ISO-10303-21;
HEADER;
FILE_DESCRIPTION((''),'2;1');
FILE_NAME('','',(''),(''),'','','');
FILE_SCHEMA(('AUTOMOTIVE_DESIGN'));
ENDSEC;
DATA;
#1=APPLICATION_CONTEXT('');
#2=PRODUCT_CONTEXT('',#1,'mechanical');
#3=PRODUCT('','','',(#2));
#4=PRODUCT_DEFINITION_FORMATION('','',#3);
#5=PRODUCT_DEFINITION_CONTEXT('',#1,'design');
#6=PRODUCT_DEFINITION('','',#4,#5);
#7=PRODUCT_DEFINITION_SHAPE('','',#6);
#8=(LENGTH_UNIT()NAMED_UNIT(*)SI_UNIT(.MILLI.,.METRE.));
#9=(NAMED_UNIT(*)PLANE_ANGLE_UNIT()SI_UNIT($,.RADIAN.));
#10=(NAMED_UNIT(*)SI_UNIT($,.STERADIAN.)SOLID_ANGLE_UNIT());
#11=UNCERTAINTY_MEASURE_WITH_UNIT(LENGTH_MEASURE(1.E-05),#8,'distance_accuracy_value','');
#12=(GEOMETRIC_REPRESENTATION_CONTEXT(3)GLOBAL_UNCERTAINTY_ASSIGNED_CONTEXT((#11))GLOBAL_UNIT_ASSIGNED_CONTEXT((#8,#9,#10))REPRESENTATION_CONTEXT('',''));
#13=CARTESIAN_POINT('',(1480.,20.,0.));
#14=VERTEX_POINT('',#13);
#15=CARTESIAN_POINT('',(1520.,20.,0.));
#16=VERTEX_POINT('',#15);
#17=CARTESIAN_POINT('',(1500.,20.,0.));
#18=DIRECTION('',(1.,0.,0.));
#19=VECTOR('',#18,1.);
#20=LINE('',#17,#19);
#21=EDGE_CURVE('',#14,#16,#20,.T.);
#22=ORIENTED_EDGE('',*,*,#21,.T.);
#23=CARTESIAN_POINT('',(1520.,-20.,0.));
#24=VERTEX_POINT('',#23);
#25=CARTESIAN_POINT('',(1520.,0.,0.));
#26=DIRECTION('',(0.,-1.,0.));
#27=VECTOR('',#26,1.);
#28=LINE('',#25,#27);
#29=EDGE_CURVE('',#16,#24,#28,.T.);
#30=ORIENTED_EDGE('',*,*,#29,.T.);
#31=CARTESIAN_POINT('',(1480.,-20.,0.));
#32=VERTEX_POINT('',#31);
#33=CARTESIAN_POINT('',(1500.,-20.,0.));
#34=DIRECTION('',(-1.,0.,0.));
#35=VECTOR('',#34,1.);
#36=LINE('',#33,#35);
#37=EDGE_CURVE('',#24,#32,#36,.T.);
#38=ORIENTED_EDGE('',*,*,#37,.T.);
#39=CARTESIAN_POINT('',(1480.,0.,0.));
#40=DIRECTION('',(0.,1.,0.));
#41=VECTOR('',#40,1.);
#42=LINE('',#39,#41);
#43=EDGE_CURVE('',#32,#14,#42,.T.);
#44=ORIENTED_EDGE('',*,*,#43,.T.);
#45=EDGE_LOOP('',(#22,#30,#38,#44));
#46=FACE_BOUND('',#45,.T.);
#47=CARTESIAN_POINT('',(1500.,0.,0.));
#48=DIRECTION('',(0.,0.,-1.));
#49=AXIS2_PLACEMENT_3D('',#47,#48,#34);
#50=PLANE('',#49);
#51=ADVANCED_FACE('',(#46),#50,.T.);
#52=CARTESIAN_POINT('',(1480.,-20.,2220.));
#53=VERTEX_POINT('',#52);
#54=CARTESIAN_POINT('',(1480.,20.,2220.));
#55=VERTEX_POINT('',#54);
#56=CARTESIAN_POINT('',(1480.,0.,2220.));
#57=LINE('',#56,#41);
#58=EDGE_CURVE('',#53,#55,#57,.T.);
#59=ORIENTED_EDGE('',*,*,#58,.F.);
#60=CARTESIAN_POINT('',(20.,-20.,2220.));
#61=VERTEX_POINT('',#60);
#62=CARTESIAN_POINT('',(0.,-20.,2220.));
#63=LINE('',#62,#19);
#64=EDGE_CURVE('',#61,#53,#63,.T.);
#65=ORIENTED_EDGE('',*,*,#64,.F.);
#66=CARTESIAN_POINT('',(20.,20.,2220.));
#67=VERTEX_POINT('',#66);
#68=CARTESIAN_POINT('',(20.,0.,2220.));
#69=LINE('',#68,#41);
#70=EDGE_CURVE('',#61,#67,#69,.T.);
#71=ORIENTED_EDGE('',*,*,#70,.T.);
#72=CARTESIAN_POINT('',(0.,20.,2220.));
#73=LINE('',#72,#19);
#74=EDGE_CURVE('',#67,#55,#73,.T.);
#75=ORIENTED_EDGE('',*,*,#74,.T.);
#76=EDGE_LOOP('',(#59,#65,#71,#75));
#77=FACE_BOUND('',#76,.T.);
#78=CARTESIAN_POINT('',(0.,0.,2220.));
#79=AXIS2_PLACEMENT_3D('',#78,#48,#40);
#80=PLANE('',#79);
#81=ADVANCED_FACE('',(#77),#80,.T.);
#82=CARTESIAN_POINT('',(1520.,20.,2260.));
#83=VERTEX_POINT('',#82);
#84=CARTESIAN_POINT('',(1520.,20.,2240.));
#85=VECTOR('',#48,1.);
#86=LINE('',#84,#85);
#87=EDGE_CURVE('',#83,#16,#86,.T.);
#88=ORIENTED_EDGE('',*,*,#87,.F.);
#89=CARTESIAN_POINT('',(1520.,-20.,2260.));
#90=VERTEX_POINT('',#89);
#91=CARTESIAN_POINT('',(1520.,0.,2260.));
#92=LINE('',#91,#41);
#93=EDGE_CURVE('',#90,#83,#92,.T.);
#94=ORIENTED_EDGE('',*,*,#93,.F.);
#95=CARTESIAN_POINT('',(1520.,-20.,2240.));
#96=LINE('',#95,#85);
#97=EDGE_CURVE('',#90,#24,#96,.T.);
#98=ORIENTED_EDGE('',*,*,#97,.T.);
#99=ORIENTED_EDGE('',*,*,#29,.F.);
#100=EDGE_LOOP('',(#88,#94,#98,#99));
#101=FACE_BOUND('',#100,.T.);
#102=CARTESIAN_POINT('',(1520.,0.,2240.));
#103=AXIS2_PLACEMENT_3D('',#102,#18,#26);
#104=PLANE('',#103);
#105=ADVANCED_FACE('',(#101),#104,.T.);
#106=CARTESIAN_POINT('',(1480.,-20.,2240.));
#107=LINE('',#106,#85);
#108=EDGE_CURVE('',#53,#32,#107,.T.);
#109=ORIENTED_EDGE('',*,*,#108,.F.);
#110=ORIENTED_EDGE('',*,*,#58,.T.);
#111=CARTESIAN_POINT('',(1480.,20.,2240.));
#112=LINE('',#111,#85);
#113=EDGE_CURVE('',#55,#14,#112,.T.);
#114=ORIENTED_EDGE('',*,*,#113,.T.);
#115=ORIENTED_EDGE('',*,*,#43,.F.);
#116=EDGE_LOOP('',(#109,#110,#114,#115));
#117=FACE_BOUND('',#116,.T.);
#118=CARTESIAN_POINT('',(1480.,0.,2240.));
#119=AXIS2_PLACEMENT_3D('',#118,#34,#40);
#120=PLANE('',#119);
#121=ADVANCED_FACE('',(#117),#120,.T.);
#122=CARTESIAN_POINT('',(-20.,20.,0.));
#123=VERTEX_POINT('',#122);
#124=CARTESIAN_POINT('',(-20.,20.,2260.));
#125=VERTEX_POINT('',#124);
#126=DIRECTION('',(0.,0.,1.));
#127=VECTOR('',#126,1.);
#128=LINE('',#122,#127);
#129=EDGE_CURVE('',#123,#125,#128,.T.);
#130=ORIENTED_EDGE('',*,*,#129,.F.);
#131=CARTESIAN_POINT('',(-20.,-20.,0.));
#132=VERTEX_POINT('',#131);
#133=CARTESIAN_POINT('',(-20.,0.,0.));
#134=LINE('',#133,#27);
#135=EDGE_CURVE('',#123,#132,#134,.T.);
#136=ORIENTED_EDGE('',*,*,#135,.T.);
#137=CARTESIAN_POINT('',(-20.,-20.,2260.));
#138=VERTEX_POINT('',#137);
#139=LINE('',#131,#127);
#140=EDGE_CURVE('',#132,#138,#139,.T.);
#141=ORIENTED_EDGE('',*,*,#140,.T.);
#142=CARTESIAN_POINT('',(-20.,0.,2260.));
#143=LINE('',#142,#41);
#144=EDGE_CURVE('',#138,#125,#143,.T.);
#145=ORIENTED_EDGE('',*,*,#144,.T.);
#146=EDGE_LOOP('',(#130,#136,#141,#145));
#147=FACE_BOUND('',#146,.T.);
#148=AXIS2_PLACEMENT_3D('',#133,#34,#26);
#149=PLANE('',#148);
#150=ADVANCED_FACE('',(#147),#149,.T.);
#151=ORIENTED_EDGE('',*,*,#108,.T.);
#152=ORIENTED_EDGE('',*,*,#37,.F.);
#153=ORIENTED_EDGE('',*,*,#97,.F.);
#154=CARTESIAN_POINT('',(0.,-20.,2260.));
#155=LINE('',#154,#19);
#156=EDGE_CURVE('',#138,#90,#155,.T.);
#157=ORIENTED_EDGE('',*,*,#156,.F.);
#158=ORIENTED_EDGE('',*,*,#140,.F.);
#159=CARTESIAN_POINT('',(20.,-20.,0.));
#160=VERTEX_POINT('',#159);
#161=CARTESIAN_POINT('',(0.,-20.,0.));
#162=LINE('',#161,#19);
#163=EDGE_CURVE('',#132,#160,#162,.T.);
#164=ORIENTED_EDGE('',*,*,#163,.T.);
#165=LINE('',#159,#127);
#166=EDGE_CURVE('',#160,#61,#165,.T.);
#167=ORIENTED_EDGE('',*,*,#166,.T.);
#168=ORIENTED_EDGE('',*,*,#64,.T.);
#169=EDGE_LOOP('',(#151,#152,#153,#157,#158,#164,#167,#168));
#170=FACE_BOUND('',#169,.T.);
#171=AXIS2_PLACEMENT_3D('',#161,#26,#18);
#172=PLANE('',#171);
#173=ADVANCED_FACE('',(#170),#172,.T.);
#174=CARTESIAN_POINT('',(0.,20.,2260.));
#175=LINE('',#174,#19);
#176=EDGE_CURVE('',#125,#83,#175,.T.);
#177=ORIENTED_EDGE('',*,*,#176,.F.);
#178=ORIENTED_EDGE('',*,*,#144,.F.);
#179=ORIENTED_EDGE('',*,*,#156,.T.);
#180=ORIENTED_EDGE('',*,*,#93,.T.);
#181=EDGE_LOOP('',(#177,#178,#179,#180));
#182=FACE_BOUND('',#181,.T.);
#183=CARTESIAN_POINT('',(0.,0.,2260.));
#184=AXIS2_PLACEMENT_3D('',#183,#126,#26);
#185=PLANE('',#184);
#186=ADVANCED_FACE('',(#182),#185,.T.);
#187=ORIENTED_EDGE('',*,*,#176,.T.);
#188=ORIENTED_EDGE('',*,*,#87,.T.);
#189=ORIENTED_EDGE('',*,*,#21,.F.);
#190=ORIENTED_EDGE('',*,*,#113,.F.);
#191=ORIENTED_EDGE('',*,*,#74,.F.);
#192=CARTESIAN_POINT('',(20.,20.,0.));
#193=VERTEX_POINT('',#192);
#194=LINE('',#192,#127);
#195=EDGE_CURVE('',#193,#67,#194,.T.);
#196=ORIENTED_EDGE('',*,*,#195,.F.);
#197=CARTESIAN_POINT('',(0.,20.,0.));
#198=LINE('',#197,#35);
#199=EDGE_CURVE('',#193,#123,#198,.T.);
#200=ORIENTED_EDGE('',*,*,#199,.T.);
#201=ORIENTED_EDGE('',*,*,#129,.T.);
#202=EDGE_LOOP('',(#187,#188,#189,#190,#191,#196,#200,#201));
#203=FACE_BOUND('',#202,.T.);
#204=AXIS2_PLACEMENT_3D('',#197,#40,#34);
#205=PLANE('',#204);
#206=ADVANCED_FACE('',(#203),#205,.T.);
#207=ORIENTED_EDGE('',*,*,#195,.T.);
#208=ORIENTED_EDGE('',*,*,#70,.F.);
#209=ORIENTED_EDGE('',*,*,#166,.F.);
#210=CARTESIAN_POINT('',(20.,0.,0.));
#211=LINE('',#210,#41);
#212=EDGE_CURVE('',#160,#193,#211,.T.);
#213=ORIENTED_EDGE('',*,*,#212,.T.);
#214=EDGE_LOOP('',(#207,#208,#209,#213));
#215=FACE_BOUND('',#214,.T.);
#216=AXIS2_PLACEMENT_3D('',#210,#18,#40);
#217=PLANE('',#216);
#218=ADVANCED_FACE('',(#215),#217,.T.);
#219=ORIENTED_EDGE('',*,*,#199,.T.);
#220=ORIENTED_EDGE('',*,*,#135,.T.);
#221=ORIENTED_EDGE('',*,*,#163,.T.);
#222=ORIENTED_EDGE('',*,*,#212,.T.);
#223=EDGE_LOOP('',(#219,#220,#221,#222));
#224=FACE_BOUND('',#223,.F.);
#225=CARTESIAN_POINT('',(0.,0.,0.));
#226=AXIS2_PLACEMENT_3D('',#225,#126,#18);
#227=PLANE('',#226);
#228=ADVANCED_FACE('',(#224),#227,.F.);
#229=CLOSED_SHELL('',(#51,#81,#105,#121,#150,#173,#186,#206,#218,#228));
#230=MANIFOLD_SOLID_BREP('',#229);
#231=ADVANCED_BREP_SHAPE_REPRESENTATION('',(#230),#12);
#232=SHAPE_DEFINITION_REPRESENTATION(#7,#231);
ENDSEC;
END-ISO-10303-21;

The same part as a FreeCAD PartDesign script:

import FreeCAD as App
import Part
import Sketcher
from FreeCAD import Vector
Q = App.Units.Quantity


def add_polygon(sketch, points):
    """Adds a closed chain of lines whose ends are joined by coincident constraints."""
    first, n = sketch.GeometryCount, len(points)
    for a, b in zip(points, points[1:] + points[:1]):
        sketch.addGeometry(Part.LineSegment(App.Vector(*a, 0), App.Vector(*b, 0)), False)
    for i in range(n):
        sketch.addConstraint(Sketcher.Constraint("Coincident", first + i, 2, first + (i + 1) % n, 1))

doc = App.newDocument("Part")
params = doc.addObject("Spreadsheet::Sheet", "Params")
for row, (alias, value) in enumerate([
    ("sketch1_width", "40 mm"),
    ("sketch2_width", "1500 mm"),
    ("sketch2_height", "2240 mm"),
], start=1):
    params.set(f"A{row}", alias)
    params.set(f"B{row}", "=" + value)
    params.setAlias(f"B{row}", alias)

body = doc.addObject("PartDesign::Body", "Body")

# Sketch on XY plane
sketch1 = body.newObject("Sketcher::SketchObject", "Sketch")
sketch1.AttachmentSupport = (doc.getObject("XY_Plane"), [""])
sketch1.MapMode = "FlatFace"
add_polygon(sketch1, [(-20, 20), (-20, -20), (20, -20), (20, 20)])  # lines 0-3
sketch1.addConstraint(Sketcher.Constraint("Vertical", 0))
sketch1.addConstraint(Sketcher.Constraint("Horizontal", 1))
sketch1.addConstraint(Sketcher.Constraint("Vertical", 2))
sketch1.addConstraint(Sketcher.Constraint("Horizontal", 3))
sketch1.addConstraint(Sketcher.Constraint("Symmetric", 0, 2, 2, 2, -1, 1))
sketch1.addConstraint(Sketcher.Constraint("Equal", 3, 0))
sketch1.addConstraint(Sketcher.Constraint("DistanceX", 1, 1, 1, 2, Q("40 mm")))
sketch1.setExpression("Constraints[10]", "Params.sketch1_width")

# Sketch on XZ plane
sketch2 = body.newObject("Sketcher::SketchObject", "Sketch001")
sketch2.AttachmentSupport = (doc.getObject("XZ_Plane"), [""])
sketch2.MapMode = "FlatFace"
sketch2.addGeometry(Part.LineSegment(Vector(0, 0, 0), Vector(0, 2240, 0)), False)
sketch2.addGeometry(Part.LineSegment(Vector(0, 2240, 0), Vector(1500, 2240, 0)), False)
sketch2.addGeometry(Part.LineSegment(Vector(1500, 2240, 0), Vector(1500, 0, 0)), False)
sketch2.addConstraint(Sketcher.Constraint("Coincident", 0, 2, 1, 1))
sketch2.addConstraint(Sketcher.Constraint("Coincident", 1, 2, 2, 1))
sketch2.addConstraint(Sketcher.Constraint("Vertical", 0))
sketch2.addConstraint(Sketcher.Constraint("Horizontal", 1))
sketch2.addConstraint(Sketcher.Constraint("Vertical", 2))
sketch2.addConstraint(Sketcher.Constraint("Coincident", 0, 1, -1, 1))
sketch2.addConstraint(Sketcher.Constraint("PointOnObject", 2, 2, -1))
sketch2.addConstraint(Sketcher.Constraint("DistanceX", 1, 1, 1, 2, Q("1500 mm")))
sketch2.addConstraint(Sketcher.Constraint("DistanceY", 0, 1, 0, 2, Q("2240 mm")))
sketch2.setExpression("Constraints[7]", "Params.sketch2_width")
sketch2.setExpression("Constraints[8]", "Params.sketch2_height")
doc.recompute()

additivepipe = body.newObject("PartDesign::AdditivePipe", "AdditivePipe")
additivepipe.Profile = sketch1
additivepipe.Spine = (sketch2, ["Edge1", "Edge2", "Edge3"])
additivepipe.Transition = "Right corner"

doc.recompute()
